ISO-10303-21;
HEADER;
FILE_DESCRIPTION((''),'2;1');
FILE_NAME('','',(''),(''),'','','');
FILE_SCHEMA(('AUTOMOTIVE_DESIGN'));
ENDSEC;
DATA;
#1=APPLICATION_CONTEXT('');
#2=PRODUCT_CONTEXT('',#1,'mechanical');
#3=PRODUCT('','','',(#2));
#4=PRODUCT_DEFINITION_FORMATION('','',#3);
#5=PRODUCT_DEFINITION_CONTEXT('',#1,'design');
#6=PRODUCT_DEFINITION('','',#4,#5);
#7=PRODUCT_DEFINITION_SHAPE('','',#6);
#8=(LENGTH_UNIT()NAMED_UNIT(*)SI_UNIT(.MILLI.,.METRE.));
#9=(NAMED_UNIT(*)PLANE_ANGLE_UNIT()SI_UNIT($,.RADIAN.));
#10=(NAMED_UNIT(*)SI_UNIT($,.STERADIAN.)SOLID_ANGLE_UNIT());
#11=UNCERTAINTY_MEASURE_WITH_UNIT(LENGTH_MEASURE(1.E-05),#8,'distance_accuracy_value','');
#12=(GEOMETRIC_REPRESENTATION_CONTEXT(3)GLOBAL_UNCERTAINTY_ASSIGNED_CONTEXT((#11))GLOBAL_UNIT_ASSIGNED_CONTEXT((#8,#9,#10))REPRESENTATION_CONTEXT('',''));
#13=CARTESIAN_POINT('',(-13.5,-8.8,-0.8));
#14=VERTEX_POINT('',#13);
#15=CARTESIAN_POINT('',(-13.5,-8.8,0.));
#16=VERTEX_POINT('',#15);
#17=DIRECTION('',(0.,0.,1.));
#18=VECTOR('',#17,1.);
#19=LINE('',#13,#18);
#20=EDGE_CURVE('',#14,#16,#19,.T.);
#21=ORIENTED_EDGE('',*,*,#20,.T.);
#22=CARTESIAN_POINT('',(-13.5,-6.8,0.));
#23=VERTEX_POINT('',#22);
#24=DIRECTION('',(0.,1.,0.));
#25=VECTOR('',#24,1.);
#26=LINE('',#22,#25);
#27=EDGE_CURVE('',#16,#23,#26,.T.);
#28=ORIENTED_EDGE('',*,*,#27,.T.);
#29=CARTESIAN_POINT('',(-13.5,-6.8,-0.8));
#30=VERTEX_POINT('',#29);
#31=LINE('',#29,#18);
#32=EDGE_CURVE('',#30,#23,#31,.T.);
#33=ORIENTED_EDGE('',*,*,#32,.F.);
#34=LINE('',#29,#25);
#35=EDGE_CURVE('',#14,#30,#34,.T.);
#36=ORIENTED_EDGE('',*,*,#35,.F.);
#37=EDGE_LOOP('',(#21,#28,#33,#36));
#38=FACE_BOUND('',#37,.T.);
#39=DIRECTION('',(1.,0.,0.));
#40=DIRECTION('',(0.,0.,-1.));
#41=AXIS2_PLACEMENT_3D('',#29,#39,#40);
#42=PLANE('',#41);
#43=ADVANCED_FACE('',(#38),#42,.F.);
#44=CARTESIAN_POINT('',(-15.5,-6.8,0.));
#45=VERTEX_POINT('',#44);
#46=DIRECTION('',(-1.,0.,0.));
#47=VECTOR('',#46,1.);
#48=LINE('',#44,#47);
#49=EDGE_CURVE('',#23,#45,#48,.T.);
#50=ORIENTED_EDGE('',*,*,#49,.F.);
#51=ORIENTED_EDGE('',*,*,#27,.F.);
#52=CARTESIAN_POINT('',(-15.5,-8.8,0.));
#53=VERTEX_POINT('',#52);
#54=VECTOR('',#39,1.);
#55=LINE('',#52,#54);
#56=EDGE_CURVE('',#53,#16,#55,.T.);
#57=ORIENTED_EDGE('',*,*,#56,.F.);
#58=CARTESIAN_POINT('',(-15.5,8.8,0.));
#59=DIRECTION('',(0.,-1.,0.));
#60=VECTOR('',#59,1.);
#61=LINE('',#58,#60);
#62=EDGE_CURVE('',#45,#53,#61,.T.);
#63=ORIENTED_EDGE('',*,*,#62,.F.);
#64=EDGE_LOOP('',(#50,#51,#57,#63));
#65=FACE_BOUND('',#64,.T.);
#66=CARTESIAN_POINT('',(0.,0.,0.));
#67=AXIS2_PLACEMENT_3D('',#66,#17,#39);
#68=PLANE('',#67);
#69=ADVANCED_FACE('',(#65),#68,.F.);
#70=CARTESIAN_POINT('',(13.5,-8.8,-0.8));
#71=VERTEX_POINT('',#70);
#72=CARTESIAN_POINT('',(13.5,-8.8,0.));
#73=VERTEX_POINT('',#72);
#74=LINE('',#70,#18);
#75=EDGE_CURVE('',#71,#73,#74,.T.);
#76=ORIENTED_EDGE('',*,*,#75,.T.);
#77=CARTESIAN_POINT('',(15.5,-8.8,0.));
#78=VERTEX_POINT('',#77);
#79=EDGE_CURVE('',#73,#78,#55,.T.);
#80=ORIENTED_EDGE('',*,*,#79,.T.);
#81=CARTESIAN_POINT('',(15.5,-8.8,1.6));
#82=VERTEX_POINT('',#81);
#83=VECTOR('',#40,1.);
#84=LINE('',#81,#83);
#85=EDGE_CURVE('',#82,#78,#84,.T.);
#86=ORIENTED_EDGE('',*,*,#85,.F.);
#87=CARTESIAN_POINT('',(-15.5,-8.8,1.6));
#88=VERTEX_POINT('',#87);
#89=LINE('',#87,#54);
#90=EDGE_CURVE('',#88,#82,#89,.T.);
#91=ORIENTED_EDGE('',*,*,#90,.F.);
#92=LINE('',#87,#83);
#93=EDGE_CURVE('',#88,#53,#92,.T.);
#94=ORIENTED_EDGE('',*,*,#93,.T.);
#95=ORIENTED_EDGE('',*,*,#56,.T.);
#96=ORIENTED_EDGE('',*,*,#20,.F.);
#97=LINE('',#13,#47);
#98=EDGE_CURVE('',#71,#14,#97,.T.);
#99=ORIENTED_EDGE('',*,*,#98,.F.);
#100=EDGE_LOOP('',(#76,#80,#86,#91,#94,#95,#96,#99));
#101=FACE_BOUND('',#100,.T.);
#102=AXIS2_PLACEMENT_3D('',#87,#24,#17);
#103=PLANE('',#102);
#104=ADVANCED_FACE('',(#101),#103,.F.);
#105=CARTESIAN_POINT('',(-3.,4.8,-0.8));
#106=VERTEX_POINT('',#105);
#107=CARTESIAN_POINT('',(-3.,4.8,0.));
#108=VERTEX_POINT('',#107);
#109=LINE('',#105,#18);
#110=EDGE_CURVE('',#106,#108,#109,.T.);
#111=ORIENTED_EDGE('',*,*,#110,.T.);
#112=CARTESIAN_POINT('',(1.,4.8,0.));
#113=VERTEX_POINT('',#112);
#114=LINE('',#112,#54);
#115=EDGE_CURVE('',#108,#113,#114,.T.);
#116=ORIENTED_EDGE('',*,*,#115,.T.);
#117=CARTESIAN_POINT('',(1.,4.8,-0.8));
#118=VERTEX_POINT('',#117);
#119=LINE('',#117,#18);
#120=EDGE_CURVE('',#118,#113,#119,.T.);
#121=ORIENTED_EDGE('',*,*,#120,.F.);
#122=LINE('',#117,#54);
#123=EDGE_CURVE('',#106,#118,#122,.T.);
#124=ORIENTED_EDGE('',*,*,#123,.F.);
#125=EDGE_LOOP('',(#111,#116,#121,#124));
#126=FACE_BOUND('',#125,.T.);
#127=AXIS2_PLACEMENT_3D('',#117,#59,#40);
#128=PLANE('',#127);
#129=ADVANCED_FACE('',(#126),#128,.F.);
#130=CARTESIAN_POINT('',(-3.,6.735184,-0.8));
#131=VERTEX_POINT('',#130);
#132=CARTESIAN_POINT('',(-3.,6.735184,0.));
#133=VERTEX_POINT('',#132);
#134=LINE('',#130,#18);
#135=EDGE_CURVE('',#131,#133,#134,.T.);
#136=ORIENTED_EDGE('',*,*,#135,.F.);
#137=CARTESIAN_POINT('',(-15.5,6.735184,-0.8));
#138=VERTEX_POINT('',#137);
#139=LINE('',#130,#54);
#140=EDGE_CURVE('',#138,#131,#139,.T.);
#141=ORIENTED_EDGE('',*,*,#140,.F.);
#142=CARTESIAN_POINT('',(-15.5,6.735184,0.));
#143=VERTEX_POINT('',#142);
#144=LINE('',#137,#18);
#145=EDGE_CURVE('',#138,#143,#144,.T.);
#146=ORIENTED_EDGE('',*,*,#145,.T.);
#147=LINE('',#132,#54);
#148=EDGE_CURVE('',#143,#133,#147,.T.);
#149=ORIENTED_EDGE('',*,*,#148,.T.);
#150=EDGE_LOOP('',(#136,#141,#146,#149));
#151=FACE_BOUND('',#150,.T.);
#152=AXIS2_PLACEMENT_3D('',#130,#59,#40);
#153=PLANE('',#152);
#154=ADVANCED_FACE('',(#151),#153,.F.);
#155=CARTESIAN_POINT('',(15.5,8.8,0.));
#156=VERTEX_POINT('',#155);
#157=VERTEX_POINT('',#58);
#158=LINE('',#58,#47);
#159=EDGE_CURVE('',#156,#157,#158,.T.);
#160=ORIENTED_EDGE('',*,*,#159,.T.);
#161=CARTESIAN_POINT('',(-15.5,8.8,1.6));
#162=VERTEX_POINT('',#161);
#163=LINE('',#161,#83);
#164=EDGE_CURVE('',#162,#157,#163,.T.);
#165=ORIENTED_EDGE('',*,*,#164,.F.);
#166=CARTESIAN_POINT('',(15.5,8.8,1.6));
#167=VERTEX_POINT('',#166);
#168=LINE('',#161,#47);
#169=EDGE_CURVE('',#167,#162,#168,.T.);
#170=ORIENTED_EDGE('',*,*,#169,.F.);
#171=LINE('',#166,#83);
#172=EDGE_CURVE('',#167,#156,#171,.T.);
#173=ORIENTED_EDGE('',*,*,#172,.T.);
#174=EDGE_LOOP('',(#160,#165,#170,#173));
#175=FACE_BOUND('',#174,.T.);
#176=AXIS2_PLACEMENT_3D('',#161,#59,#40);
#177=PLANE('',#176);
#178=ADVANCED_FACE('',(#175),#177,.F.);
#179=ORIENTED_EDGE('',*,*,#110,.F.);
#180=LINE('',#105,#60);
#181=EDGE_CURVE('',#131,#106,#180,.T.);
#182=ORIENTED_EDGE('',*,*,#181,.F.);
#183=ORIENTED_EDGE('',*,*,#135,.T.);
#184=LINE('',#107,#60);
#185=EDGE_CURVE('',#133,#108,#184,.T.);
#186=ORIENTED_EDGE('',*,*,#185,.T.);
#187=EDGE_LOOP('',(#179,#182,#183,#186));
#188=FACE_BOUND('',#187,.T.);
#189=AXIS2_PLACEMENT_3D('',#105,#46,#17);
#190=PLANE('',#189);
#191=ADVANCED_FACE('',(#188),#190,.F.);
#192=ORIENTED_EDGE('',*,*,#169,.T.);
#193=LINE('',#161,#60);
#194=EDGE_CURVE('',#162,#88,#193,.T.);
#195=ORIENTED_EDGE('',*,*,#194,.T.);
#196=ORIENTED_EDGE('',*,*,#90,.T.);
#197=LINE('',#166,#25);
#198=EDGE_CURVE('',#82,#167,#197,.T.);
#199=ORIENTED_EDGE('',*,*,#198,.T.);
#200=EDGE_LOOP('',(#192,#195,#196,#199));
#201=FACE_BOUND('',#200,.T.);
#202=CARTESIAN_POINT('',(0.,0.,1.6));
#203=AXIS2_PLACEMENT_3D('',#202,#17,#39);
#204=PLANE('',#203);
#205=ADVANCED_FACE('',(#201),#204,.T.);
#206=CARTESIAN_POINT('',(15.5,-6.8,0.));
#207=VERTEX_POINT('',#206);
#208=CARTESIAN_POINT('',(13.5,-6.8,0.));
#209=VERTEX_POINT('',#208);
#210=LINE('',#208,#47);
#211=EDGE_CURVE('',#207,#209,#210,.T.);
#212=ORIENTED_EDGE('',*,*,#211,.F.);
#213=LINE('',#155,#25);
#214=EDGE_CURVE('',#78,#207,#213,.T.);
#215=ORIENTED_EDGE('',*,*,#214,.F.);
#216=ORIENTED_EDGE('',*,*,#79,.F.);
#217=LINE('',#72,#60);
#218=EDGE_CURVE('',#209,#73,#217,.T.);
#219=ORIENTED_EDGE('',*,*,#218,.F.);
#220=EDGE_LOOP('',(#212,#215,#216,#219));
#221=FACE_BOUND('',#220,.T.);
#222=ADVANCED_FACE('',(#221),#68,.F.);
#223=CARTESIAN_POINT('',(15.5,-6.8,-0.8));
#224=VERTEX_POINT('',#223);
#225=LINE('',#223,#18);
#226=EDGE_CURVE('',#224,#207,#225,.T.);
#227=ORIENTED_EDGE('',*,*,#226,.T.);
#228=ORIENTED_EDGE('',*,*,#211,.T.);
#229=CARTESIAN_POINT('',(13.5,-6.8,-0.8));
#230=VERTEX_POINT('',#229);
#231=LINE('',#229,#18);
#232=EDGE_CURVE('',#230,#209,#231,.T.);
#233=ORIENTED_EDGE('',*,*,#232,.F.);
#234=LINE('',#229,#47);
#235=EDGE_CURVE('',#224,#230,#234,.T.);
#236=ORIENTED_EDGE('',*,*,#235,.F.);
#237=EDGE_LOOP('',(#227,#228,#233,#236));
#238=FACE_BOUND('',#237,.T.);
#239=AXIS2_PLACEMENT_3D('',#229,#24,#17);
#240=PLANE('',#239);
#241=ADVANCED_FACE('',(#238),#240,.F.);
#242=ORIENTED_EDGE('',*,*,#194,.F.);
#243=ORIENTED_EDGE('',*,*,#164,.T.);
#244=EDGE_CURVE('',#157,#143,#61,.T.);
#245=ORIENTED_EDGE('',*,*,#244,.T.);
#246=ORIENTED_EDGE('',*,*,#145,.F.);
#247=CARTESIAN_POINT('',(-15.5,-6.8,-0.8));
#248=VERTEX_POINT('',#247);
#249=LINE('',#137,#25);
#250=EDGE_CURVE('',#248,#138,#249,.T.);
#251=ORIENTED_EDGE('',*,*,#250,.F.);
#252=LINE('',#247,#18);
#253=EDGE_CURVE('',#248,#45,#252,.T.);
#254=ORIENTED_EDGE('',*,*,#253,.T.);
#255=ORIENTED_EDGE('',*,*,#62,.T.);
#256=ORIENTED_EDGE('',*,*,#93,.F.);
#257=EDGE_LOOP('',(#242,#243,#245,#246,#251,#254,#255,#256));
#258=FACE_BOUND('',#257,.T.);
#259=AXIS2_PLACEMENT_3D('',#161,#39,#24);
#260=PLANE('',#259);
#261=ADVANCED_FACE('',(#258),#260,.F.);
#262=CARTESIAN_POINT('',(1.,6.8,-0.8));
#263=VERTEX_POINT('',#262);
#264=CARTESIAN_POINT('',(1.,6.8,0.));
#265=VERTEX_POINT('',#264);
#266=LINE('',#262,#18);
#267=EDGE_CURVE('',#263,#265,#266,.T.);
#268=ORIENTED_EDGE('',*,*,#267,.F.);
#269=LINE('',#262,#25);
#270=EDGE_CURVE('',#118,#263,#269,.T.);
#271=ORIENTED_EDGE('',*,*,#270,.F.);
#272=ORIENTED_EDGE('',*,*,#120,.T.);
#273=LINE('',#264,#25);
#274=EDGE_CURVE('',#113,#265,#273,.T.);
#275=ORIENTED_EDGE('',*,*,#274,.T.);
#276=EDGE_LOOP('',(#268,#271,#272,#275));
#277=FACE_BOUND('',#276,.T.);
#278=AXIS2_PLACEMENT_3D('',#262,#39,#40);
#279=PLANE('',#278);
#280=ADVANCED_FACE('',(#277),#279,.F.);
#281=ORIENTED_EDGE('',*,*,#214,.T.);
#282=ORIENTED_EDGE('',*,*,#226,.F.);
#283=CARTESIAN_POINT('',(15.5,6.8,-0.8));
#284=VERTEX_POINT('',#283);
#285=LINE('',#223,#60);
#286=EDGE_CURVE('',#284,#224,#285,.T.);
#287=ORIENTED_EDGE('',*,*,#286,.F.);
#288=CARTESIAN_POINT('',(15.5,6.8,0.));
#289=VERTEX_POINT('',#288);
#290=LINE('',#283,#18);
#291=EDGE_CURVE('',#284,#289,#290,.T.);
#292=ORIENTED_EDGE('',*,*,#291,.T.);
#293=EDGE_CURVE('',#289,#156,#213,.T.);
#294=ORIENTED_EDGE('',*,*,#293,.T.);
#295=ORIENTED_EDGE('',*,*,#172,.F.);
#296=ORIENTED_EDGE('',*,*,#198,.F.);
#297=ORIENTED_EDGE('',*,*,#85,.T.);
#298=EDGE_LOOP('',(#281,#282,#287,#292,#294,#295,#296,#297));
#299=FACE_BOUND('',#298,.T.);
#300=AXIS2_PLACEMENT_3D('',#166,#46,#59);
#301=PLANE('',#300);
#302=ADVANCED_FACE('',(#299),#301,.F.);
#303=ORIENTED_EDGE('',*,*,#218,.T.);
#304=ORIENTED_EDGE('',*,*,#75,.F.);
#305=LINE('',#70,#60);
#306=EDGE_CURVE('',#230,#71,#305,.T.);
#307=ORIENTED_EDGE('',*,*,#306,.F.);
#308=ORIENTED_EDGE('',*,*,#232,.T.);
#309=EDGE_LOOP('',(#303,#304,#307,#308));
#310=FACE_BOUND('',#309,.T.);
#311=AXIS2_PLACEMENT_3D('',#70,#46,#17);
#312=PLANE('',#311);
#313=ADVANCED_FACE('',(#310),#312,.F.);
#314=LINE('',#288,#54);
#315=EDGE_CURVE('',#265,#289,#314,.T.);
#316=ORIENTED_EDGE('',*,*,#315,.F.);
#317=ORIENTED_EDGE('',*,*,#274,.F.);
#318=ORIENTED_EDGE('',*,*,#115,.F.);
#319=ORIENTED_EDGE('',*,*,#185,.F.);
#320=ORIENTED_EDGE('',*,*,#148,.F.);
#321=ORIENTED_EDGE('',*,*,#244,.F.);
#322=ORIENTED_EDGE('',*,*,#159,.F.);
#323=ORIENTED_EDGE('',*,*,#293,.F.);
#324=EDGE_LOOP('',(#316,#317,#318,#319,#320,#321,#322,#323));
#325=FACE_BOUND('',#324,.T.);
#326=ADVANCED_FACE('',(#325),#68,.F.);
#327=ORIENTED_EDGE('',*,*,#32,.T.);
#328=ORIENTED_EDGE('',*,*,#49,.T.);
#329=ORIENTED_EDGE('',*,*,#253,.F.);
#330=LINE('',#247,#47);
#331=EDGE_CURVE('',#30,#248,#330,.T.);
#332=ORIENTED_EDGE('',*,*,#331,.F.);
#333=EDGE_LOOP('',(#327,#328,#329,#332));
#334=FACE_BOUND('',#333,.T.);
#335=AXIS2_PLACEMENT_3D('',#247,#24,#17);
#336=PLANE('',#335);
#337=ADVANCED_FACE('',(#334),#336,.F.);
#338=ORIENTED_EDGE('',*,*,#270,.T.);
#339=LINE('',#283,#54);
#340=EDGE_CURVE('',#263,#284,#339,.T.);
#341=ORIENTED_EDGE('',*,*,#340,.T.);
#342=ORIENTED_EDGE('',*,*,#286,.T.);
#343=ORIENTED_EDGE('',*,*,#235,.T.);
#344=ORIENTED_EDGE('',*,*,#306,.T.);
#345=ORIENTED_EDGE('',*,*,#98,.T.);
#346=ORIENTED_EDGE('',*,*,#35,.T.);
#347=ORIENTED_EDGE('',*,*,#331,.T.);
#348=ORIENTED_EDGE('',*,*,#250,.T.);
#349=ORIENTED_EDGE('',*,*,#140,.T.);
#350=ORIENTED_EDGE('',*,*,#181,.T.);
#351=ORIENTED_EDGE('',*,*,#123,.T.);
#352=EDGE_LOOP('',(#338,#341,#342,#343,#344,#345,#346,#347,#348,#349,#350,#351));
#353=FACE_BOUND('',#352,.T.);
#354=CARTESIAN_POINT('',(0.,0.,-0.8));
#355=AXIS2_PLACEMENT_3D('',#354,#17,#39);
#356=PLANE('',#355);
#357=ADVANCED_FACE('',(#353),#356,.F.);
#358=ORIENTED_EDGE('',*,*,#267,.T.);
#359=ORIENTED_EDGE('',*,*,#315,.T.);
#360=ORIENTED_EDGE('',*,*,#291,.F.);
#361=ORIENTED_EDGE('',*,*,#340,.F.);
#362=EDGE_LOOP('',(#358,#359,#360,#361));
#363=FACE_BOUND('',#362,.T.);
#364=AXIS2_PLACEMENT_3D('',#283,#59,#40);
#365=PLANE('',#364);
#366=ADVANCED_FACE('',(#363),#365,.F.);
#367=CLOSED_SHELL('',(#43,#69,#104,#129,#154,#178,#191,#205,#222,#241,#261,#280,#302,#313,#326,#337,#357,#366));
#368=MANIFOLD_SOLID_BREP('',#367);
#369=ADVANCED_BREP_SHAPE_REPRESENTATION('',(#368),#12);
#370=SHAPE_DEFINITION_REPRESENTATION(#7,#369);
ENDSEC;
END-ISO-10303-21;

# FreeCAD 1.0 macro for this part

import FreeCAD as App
import Part
import Sketcher

V = App.Vector


def add_polygon(sketch, points):
    """Adds a closed chain of lines whose ends are joined by coincident constraints."""
    first, n = sketch.GeometryCount, len(points)
    for a, b in zip(points, points[1:] + points[:1]):
        sketch.addGeometry(Part.LineSegment(App.Vector(*a, 0), App.Vector(*b, 0)), False)
    for i in range(n):
        sketch.addConstraint(Sketcher.Constraint("Coincident", first + i, 2, first + (i + 1) % n, 1))

doc = App.newDocument("Part")
body = doc.addObject("PartDesign::Body", "Body")

# Sketch on XY plane
sketch1 = body.newObject("Sketcher::SketchObject", "Sketch")
sketch1.AttachmentSupport = (doc.getObject("XY_Plane"), [""])
sketch1.MapMode = "FlatFace"
add_polygon(sketch1, [(-16, 9), (-16, -9), (16, -9), (16, 9)])  # lines 0-3
sketch1.addConstraint(Sketcher.Constraint("Vertical", 0))
sketch1.addConstraint(Sketcher.Constraint("Horizontal", 1))
sketch1.addConstraint(Sketcher.Constraint("Vertical", 2))
sketch1.addConstraint(Sketcher.Constraint("Horizontal", 3))
sketch1.addConstraint(Sketcher.Constraint("Symmetric", 0, 2, 2, 2, -1, 1))
sketch1.addConstraint(Sketcher.Constraint("DistanceX", 1, 1, 1, 2, 31.0))
sketch1.addConstraint(Sketcher.Constraint("DistanceY", 0, 2, 0, 1, 17.6))
pad1 = body.newObject("PartDesign::Pad", "Pad")
pad1.Profile = sketch1
pad1.Length = 1.6

# Sketch on XY plane
sketch2 = body.newObject("Sketcher::SketchObject", "Sketch001")
sketch2.AttachmentSupport = (doc.getObject("XY_Plane"), [""])
sketch2.MapMode = "FlatFace"
add_polygon(sketch2, [(13.5, -6.8), (13.5, -8.8), (-13.5, -8.8), (-13.5, -6.8), (-15.5, -6.8), (-15.5, 6.7), (-3, 6.7), (-3, 4.8), (1, 4.8), (1, 6.8), (15.5, 6.8), (15.5, -6.8)])  # lines 0-11
sketch2.addConstraint(Sketcher.Constraint("Vertical", 0))
sketch2.addConstraint(Sketcher.Constraint("Horizontal", 1))
sketch2.addConstraint(Sketcher.Constraint("Vertical", 2))
sketch2.addConstraint(Sketcher.Constraint("Horizontal", 3))
sketch2.addConstraint(Sketcher.Constraint("Vertical", 4))
sketch2.addConstraint(Sketcher.Constraint("Horizontal", 5))
sketch2.addConstraint(Sketcher.Constraint("Vertical", 6))
sketch2.addConstraint(Sketcher.Constraint("Horizontal", 7))
sketch2.addConstraint(Sketcher.Constraint("Vertical", 8))
sketch2.addConstraint(Sketcher.Constraint("Horizontal", 9))
sketch2.addConstraint(Sketcher.Constraint("Vertical", 10))
sketch2.addConstraint(Sketcher.Constraint("Horizontal", 11))
sketch2.addConstraint(Sketcher.Constraint("Symmetric", 3, 2, 9, 2, -1, 1))
sketch2.addConstraint(Sketcher.Constraint("Symmetric", 2, 2, 11, 2, -2))
sketch2.addConstraint(Sketcher.Constraint("Equal", 11, 0))
sketch2.addConstraint(Sketcher.Constraint("Equal", 2, 8))
sketch2.addConstraint(Sketcher.Constraint("DistanceX", 1, 2, 1, 1, 27.0))
sketch2.addConstraint(Sketcher.Constraint("DistanceX", 3, 2, 3, 1, 2.0))
sketch2.addConstraint(Sketcher.Constraint("DistanceX", 7, 1, 7, 2, 4.0))
sketch2.addConstraint(Sketcher.Constraint("DistanceX", 5, 1, 5, 2, 12.5))
sketch2.addConstraint(Sketcher.Constraint("DistanceY", 10, 2, 10, 1, 13.6))
sketch2.addConstraint(Sketcher.Constraint("DistanceY", 4, 1, 4, 2, 13.535184))
pad2 = body.newObject("PartDesign::Pad", "Pad001")
pad2.Profile = sketch2
pad2.Length = 0.8
pad2.Reversed = True

doc.recompute()
